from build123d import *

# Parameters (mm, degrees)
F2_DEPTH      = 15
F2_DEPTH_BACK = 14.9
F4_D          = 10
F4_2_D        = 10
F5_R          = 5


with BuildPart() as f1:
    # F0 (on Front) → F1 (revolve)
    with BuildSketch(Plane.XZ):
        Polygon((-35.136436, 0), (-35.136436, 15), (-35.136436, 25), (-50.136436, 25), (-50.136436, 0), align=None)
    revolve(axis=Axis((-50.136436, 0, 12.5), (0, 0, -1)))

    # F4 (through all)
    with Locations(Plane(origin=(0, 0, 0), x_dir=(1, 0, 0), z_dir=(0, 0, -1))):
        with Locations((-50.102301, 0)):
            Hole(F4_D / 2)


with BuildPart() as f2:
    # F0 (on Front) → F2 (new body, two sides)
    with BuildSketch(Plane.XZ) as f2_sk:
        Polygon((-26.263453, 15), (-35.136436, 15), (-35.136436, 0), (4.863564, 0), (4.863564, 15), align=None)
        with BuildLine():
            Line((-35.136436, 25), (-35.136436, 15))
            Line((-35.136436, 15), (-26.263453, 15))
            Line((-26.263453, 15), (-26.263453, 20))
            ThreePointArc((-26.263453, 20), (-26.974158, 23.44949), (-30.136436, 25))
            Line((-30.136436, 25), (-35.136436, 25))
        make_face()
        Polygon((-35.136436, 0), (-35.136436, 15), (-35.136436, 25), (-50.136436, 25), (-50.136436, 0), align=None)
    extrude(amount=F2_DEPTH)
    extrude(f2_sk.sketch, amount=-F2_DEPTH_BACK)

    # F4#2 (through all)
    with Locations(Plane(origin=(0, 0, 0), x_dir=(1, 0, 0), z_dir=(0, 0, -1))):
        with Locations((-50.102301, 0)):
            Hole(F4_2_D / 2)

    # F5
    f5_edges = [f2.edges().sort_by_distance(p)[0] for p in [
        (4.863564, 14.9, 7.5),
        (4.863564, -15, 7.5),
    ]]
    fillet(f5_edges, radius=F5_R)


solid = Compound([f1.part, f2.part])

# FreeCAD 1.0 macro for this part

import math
import FreeCAD as App
import Part
import Sketcher
from FreeCAD import Vector
Q = App.Units.Quantity


def edges_at(feature, points):
    """Names of the edges that pass closest to the given points."""
    edges = feature.Shape.Edges
    near = lambda p: min(range(len(edges)), key=lambda i: edges[i].distToShape(Part.Vertex(*p))[0])
    return sorted({f"Edge{near(p) + 1}" for p in points})

doc = App.newDocument("Part")
params = doc.addObject("Spreadsheet::Sheet", "Params")
for row, (alias, value) in enumerate([
    ("sketch1_width", "15 mm"),
    ("sketch1_height", "25 mm"),
    ("revolution_angle", "360 deg"),
    ("sketch2_diameter", "10 mm"),
    ("hole_diameter", "10 mm"),
    ("sketch3_radius", "3.999999 mm"),
    ("sketch3_width", "20 mm"),
    ("sketch3_width2", "55 mm"),
    ("sketch3_height", "15 mm"),
    ("sketch3_height2", "5 mm"),
    ("pad1_length", "15 mm"),
    ("pad1_length2", "14.9 mm"),
    ("sketch4_diameter", "10 mm"),
    ("hole2_diameter", "10 mm"),
    ("fillet_radius", "5 mm"),
], start=1):
    params.set(f"A{row}", alias)
    params.set(f"B{row}", "=" + value)
    params.setAlias(f"B{row}", alias)

body = doc.addObject("PartDesign::Body", "Body")

# Sketch on XZ plane
sketch1 = body.newObject("Sketcher::SketchObject", "Sketch")
sketch1.AttachmentSupport = (doc.getObject("XZ_Plane"), [""])
sketch1.MapMode = "FlatFace"
sketch1.addGeometry(Part.LineSegment(Vector(-35.136436, 0, 0), Vector(-35.136436, 25, 0)), False)
sketch1.addGeometry(Part.LineSegment(Vector(-35.136436, 25, 0), Vector(-50.136436, 25, 0)), False)
sketch1.addGeometry(Part.LineSegment(Vector(-50.136436, 25, 0), Vector(-50.136436, 0, 0)), False)
sketch1.addGeometry(Part.LineSegment(Vector(-50.136436, 0, 0), Vector(-35.136436, 0, 0)), False)
sketch1.addGeometry(Part.LineSegment(Vector(-50.136436, 25, 0), Vector(-50.136436, 0, 0)), True)  # axis
sketch1.addConstraint(Sketcher.Constraint("Coincident", 0, 2, 1, 1))
sketch1.addConstraint(Sketcher.Constraint("Coincident", 1, 2, 2, 1))
sketch1.addConstraint(Sketcher.Constraint("Coincident", 2, 2, 3, 1))
sketch1.addConstraint(Sketcher.Constraint("Coincident", 3, 2, 0, 1))
sketch1.addConstraint(Sketcher.Constraint("Vertical", 0))
sketch1.addConstraint(Sketcher.Constraint("Horizontal", 1))
sketch1.addConstraint(Sketcher.Constraint("Vertical", 2))
sketch1.addConstraint(Sketcher.Constraint("Horizontal", 3))
sketch1.addConstraint(Sketcher.Constraint("Vertical", 4))
sketch1.addConstraint(Sketcher.Constraint("Coincident", 4, 1, 1, 2))
sketch1.addConstraint(Sketcher.Constraint("PointOnObject", 2, 2, -1))
sketch1.addConstraint(Sketcher.Constraint("PointOnObject", 4, 2, -1))
sketch1.addConstraint(Sketcher.Constraint("DistanceX", 1, 2, 1, 1, Q("15 mm")))
sketch1.addConstraint(Sketcher.Constraint("DistanceY", 0, 1, 0, 2, Q("25 mm")))
sketch1.addConstraint(Sketcher.Constraint("DistanceX", 0, 2, -1, 1, Q("35.136436 mm")))
sketch1.setExpression("Constraints[12]", "Params.sketch1_width")
sketch1.setExpression("Constraints[13]", "Params.sketch1_height")
revolution = body.newObject("PartDesign::Revolution", "Revolution")
revolution.Profile = sketch1
revolution.ReferenceAxis = (sketch1, ["Axis0"])
revolution.setExpression("Angle", "Params.revolution_angle")

# Sketch on XY plane
sketch2 = body.newObject("Sketcher::SketchObject", "Sketch001")
sketch2.AttachmentSupport = (doc.getObject("XY_Plane"), [""])
sketch2.MapMode = "FlatFace"
sketch2.addGeometry(Part.Circle(Vector(-50.102301, 0, 0), Vector(0, 0, 1), 5), False)
sketch2.addConstraint(Sketcher.Constraint("PointOnObject", 0, 3, -1))
sketch2.addConstraint(Sketcher.Constraint("Diameter", 0, Q("10 mm")))
sketch2.addConstraint(Sketcher.Constraint("DistanceX", 0, 3, -1, 1, Q("50.102301 mm")))
sketch2.setExpression("Constraints[1]", "Params.sketch2_diameter")
doc.recompute()
hole = body.newObject("PartDesign::Hole", "Hole")
hole.Profile = sketch2
hole.ThreadType = "None"
hole.setExpression("Diameter", "Params.hole_diameter")
hole.DepthType = "ThroughAll"
hole.Reversed = True
body2 = doc.addObject("PartDesign::Body", "Body001")

# Sketch on XZ plane
sketch3 = body2.newObject("Sketcher::SketchObject", "Sketch002")
sketch3.AttachmentSupport = (doc.getObject("XZ_Plane001"), [""])
sketch3.MapMode = "FlatFace"
sketch3.addGeometry(Part.LineSegment(Vector(4.863564, 0, 0), Vector(4.863564, 15, 0)), False)
sketch3.addGeometry(Part.LineSegment(Vector(4.863564, 15, 0), Vector(-26.263453, 15, 0)), False)
sketch3.addGeometry(Part.LineSegment(Vector(-26.263453, 15, 0), Vector(-26.263453, 20, 0)), False)
sketch3.addGeometry(Part.ArcOfCircle(Part.Circle(Vector(-30.136435, 21.000001, 0), Vector(0, 0, 1), 3.999999), math.radians(-14.477533), math.radians(90.000015)), False)
sketch3.addGeometry(Part.LineSegment(Vector(-30.136436, 25, 0), Vector(-50.136436, 25, 0)), False)
sketch3.addGeometry(Part.LineSegment(Vector(-50.136436, 25, 0), Vector(-50.136436, 0, 0)), False)
sketch3.addGeometry(Part.LineSegment(Vector(-50.136436, 0, 0), Vector(4.863564, 0, 0)), False)
sketch3.addConstraint(Sketcher.Constraint("Coincident", 0, 2, 1, 1))
sketch3.addConstraint(Sketcher.Constraint("Coincident", 1, 2, 2, 1))
sketch3.addConstraint(Sketcher.Constraint("Coincident", 2, 2, 3, 1))
sketch3.addConstraint(Sketcher.Constraint("Tangent", 3, 2, 4, 1))
sketch3.addConstraint(Sketcher.Constraint("Coincident", 4, 2, 5, 1))
sketch3.addConstraint(Sketcher.Constraint("Coincident", 5, 2, 6, 1))
sketch3.addConstraint(Sketcher.Constraint("Coincident", 6, 2, 0, 1))
sketch3.addConstraint(Sketcher.Constraint("Vertical", 0))
sketch3.addConstraint(Sketcher.Constraint("Horizontal", 1))
sketch3.addConstraint(Sketcher.Constraint("Vertical", 2))
sketch3.addConstraint(Sketcher.Constraint("Horizontal", 4))
sketch3.addConstraint(Sketcher.Constraint("Vertical", 5))
sketch3.addConstraint(Sketcher.Constraint("Horizontal", 6))
sketch3.addConstraint(Sketcher.Constraint("PointOnObject", 5, 2, -1))
sketch3.addConstraint(Sketcher.Constraint("Radius", 3, Q("3.999999 mm")))
sketch3.addConstraint(Sketcher.Constraint("DistanceX", 4, 2, 4, 1, Q("20 mm")))
sketch3.addConstraint(Sketcher.Constraint("DistanceX", 6, 1, 6, 2, Q("55 mm")))
sketch3.addConstraint(Sketcher.Constraint("DistanceY", 0, 1, 0, 2, Q("15 mm")))
sketch3.addConstraint(Sketcher.Constraint("DistanceY", 2, 1, 2, 2, Q("5 mm")))
sketch3.addConstraint(Sketcher.Constraint("DistanceY", 5, 2, 5, 1, Q("25 mm")))
sketch3.addConstraint(Sketcher.Constraint("DistanceX", 3, 3, -1, 1, Q("30.136435 mm")))
sketch3.setExpression("Constraints[14]", "Params.sketch3_radius")
sketch3.setExpression("Constraints[15]", "Params.sketch3_width")
sketch3.setExpression("Constraints[16]", "Params.sketch3_width2")
sketch3.setExpression("Constraints[17]", "Params.sketch3_height")
sketch3.setExpression("Constraints[18]", "Params.sketch3_height2")
pad1 = body2.newObject("PartDesign::Pad", "Pad")
pad1.Profile = sketch3
pad1.Type = "TwoLengths"
pad1.setExpression("Length", "Params.pad1_length")
pad1.setExpression("Length2", "Params.pad1_length2")

# Sketch on XY plane
sketch4 = body2.newObject("Sketcher::SketchObject", "Sketch003")
sketch4.AttachmentSupport = (doc.getObject("XY_Plane001"), [""])
sketch4.MapMode = "FlatFace"
sketch4.addGeometry(Part.Circle(Vector(-50.102301, 0, 0), Vector(0, 0, 1), 5), False)
sketch4.addConstraint(Sketcher.Constraint("PointOnObject", 0, 3, -1))
sketch4.addConstraint(Sketcher.Constraint("Diameter", 0, Q("10 mm")))
sketch4.addConstraint(Sketcher.Constraint("DistanceX", 0, 3, -1, 1, Q("50.102301 mm")))
sketch4.setExpression("Constraints[1]", "Params.sketch4_diameter")
doc.recompute()
hole2 = body2.newObject("PartDesign::Hole", "Hole001")
hole2.Profile = sketch4
hole2.ThreadType = "None"
hole2.setExpression("Diameter", "Params.hole2_diameter")
hole2.DepthType = "ThroughAll"
hole2.Reversed = True
doc.recompute()

fillet = body2.newObject("PartDesign::Fillet", "Fillet")
fillet.Base = (hole2, edges_at(hole2, [(4.864, 14.9, 7.5), (4.864, -15, 7.5)]))
fillet.setExpression("Radius", "Params.fillet_radius")

doc.recompute()
